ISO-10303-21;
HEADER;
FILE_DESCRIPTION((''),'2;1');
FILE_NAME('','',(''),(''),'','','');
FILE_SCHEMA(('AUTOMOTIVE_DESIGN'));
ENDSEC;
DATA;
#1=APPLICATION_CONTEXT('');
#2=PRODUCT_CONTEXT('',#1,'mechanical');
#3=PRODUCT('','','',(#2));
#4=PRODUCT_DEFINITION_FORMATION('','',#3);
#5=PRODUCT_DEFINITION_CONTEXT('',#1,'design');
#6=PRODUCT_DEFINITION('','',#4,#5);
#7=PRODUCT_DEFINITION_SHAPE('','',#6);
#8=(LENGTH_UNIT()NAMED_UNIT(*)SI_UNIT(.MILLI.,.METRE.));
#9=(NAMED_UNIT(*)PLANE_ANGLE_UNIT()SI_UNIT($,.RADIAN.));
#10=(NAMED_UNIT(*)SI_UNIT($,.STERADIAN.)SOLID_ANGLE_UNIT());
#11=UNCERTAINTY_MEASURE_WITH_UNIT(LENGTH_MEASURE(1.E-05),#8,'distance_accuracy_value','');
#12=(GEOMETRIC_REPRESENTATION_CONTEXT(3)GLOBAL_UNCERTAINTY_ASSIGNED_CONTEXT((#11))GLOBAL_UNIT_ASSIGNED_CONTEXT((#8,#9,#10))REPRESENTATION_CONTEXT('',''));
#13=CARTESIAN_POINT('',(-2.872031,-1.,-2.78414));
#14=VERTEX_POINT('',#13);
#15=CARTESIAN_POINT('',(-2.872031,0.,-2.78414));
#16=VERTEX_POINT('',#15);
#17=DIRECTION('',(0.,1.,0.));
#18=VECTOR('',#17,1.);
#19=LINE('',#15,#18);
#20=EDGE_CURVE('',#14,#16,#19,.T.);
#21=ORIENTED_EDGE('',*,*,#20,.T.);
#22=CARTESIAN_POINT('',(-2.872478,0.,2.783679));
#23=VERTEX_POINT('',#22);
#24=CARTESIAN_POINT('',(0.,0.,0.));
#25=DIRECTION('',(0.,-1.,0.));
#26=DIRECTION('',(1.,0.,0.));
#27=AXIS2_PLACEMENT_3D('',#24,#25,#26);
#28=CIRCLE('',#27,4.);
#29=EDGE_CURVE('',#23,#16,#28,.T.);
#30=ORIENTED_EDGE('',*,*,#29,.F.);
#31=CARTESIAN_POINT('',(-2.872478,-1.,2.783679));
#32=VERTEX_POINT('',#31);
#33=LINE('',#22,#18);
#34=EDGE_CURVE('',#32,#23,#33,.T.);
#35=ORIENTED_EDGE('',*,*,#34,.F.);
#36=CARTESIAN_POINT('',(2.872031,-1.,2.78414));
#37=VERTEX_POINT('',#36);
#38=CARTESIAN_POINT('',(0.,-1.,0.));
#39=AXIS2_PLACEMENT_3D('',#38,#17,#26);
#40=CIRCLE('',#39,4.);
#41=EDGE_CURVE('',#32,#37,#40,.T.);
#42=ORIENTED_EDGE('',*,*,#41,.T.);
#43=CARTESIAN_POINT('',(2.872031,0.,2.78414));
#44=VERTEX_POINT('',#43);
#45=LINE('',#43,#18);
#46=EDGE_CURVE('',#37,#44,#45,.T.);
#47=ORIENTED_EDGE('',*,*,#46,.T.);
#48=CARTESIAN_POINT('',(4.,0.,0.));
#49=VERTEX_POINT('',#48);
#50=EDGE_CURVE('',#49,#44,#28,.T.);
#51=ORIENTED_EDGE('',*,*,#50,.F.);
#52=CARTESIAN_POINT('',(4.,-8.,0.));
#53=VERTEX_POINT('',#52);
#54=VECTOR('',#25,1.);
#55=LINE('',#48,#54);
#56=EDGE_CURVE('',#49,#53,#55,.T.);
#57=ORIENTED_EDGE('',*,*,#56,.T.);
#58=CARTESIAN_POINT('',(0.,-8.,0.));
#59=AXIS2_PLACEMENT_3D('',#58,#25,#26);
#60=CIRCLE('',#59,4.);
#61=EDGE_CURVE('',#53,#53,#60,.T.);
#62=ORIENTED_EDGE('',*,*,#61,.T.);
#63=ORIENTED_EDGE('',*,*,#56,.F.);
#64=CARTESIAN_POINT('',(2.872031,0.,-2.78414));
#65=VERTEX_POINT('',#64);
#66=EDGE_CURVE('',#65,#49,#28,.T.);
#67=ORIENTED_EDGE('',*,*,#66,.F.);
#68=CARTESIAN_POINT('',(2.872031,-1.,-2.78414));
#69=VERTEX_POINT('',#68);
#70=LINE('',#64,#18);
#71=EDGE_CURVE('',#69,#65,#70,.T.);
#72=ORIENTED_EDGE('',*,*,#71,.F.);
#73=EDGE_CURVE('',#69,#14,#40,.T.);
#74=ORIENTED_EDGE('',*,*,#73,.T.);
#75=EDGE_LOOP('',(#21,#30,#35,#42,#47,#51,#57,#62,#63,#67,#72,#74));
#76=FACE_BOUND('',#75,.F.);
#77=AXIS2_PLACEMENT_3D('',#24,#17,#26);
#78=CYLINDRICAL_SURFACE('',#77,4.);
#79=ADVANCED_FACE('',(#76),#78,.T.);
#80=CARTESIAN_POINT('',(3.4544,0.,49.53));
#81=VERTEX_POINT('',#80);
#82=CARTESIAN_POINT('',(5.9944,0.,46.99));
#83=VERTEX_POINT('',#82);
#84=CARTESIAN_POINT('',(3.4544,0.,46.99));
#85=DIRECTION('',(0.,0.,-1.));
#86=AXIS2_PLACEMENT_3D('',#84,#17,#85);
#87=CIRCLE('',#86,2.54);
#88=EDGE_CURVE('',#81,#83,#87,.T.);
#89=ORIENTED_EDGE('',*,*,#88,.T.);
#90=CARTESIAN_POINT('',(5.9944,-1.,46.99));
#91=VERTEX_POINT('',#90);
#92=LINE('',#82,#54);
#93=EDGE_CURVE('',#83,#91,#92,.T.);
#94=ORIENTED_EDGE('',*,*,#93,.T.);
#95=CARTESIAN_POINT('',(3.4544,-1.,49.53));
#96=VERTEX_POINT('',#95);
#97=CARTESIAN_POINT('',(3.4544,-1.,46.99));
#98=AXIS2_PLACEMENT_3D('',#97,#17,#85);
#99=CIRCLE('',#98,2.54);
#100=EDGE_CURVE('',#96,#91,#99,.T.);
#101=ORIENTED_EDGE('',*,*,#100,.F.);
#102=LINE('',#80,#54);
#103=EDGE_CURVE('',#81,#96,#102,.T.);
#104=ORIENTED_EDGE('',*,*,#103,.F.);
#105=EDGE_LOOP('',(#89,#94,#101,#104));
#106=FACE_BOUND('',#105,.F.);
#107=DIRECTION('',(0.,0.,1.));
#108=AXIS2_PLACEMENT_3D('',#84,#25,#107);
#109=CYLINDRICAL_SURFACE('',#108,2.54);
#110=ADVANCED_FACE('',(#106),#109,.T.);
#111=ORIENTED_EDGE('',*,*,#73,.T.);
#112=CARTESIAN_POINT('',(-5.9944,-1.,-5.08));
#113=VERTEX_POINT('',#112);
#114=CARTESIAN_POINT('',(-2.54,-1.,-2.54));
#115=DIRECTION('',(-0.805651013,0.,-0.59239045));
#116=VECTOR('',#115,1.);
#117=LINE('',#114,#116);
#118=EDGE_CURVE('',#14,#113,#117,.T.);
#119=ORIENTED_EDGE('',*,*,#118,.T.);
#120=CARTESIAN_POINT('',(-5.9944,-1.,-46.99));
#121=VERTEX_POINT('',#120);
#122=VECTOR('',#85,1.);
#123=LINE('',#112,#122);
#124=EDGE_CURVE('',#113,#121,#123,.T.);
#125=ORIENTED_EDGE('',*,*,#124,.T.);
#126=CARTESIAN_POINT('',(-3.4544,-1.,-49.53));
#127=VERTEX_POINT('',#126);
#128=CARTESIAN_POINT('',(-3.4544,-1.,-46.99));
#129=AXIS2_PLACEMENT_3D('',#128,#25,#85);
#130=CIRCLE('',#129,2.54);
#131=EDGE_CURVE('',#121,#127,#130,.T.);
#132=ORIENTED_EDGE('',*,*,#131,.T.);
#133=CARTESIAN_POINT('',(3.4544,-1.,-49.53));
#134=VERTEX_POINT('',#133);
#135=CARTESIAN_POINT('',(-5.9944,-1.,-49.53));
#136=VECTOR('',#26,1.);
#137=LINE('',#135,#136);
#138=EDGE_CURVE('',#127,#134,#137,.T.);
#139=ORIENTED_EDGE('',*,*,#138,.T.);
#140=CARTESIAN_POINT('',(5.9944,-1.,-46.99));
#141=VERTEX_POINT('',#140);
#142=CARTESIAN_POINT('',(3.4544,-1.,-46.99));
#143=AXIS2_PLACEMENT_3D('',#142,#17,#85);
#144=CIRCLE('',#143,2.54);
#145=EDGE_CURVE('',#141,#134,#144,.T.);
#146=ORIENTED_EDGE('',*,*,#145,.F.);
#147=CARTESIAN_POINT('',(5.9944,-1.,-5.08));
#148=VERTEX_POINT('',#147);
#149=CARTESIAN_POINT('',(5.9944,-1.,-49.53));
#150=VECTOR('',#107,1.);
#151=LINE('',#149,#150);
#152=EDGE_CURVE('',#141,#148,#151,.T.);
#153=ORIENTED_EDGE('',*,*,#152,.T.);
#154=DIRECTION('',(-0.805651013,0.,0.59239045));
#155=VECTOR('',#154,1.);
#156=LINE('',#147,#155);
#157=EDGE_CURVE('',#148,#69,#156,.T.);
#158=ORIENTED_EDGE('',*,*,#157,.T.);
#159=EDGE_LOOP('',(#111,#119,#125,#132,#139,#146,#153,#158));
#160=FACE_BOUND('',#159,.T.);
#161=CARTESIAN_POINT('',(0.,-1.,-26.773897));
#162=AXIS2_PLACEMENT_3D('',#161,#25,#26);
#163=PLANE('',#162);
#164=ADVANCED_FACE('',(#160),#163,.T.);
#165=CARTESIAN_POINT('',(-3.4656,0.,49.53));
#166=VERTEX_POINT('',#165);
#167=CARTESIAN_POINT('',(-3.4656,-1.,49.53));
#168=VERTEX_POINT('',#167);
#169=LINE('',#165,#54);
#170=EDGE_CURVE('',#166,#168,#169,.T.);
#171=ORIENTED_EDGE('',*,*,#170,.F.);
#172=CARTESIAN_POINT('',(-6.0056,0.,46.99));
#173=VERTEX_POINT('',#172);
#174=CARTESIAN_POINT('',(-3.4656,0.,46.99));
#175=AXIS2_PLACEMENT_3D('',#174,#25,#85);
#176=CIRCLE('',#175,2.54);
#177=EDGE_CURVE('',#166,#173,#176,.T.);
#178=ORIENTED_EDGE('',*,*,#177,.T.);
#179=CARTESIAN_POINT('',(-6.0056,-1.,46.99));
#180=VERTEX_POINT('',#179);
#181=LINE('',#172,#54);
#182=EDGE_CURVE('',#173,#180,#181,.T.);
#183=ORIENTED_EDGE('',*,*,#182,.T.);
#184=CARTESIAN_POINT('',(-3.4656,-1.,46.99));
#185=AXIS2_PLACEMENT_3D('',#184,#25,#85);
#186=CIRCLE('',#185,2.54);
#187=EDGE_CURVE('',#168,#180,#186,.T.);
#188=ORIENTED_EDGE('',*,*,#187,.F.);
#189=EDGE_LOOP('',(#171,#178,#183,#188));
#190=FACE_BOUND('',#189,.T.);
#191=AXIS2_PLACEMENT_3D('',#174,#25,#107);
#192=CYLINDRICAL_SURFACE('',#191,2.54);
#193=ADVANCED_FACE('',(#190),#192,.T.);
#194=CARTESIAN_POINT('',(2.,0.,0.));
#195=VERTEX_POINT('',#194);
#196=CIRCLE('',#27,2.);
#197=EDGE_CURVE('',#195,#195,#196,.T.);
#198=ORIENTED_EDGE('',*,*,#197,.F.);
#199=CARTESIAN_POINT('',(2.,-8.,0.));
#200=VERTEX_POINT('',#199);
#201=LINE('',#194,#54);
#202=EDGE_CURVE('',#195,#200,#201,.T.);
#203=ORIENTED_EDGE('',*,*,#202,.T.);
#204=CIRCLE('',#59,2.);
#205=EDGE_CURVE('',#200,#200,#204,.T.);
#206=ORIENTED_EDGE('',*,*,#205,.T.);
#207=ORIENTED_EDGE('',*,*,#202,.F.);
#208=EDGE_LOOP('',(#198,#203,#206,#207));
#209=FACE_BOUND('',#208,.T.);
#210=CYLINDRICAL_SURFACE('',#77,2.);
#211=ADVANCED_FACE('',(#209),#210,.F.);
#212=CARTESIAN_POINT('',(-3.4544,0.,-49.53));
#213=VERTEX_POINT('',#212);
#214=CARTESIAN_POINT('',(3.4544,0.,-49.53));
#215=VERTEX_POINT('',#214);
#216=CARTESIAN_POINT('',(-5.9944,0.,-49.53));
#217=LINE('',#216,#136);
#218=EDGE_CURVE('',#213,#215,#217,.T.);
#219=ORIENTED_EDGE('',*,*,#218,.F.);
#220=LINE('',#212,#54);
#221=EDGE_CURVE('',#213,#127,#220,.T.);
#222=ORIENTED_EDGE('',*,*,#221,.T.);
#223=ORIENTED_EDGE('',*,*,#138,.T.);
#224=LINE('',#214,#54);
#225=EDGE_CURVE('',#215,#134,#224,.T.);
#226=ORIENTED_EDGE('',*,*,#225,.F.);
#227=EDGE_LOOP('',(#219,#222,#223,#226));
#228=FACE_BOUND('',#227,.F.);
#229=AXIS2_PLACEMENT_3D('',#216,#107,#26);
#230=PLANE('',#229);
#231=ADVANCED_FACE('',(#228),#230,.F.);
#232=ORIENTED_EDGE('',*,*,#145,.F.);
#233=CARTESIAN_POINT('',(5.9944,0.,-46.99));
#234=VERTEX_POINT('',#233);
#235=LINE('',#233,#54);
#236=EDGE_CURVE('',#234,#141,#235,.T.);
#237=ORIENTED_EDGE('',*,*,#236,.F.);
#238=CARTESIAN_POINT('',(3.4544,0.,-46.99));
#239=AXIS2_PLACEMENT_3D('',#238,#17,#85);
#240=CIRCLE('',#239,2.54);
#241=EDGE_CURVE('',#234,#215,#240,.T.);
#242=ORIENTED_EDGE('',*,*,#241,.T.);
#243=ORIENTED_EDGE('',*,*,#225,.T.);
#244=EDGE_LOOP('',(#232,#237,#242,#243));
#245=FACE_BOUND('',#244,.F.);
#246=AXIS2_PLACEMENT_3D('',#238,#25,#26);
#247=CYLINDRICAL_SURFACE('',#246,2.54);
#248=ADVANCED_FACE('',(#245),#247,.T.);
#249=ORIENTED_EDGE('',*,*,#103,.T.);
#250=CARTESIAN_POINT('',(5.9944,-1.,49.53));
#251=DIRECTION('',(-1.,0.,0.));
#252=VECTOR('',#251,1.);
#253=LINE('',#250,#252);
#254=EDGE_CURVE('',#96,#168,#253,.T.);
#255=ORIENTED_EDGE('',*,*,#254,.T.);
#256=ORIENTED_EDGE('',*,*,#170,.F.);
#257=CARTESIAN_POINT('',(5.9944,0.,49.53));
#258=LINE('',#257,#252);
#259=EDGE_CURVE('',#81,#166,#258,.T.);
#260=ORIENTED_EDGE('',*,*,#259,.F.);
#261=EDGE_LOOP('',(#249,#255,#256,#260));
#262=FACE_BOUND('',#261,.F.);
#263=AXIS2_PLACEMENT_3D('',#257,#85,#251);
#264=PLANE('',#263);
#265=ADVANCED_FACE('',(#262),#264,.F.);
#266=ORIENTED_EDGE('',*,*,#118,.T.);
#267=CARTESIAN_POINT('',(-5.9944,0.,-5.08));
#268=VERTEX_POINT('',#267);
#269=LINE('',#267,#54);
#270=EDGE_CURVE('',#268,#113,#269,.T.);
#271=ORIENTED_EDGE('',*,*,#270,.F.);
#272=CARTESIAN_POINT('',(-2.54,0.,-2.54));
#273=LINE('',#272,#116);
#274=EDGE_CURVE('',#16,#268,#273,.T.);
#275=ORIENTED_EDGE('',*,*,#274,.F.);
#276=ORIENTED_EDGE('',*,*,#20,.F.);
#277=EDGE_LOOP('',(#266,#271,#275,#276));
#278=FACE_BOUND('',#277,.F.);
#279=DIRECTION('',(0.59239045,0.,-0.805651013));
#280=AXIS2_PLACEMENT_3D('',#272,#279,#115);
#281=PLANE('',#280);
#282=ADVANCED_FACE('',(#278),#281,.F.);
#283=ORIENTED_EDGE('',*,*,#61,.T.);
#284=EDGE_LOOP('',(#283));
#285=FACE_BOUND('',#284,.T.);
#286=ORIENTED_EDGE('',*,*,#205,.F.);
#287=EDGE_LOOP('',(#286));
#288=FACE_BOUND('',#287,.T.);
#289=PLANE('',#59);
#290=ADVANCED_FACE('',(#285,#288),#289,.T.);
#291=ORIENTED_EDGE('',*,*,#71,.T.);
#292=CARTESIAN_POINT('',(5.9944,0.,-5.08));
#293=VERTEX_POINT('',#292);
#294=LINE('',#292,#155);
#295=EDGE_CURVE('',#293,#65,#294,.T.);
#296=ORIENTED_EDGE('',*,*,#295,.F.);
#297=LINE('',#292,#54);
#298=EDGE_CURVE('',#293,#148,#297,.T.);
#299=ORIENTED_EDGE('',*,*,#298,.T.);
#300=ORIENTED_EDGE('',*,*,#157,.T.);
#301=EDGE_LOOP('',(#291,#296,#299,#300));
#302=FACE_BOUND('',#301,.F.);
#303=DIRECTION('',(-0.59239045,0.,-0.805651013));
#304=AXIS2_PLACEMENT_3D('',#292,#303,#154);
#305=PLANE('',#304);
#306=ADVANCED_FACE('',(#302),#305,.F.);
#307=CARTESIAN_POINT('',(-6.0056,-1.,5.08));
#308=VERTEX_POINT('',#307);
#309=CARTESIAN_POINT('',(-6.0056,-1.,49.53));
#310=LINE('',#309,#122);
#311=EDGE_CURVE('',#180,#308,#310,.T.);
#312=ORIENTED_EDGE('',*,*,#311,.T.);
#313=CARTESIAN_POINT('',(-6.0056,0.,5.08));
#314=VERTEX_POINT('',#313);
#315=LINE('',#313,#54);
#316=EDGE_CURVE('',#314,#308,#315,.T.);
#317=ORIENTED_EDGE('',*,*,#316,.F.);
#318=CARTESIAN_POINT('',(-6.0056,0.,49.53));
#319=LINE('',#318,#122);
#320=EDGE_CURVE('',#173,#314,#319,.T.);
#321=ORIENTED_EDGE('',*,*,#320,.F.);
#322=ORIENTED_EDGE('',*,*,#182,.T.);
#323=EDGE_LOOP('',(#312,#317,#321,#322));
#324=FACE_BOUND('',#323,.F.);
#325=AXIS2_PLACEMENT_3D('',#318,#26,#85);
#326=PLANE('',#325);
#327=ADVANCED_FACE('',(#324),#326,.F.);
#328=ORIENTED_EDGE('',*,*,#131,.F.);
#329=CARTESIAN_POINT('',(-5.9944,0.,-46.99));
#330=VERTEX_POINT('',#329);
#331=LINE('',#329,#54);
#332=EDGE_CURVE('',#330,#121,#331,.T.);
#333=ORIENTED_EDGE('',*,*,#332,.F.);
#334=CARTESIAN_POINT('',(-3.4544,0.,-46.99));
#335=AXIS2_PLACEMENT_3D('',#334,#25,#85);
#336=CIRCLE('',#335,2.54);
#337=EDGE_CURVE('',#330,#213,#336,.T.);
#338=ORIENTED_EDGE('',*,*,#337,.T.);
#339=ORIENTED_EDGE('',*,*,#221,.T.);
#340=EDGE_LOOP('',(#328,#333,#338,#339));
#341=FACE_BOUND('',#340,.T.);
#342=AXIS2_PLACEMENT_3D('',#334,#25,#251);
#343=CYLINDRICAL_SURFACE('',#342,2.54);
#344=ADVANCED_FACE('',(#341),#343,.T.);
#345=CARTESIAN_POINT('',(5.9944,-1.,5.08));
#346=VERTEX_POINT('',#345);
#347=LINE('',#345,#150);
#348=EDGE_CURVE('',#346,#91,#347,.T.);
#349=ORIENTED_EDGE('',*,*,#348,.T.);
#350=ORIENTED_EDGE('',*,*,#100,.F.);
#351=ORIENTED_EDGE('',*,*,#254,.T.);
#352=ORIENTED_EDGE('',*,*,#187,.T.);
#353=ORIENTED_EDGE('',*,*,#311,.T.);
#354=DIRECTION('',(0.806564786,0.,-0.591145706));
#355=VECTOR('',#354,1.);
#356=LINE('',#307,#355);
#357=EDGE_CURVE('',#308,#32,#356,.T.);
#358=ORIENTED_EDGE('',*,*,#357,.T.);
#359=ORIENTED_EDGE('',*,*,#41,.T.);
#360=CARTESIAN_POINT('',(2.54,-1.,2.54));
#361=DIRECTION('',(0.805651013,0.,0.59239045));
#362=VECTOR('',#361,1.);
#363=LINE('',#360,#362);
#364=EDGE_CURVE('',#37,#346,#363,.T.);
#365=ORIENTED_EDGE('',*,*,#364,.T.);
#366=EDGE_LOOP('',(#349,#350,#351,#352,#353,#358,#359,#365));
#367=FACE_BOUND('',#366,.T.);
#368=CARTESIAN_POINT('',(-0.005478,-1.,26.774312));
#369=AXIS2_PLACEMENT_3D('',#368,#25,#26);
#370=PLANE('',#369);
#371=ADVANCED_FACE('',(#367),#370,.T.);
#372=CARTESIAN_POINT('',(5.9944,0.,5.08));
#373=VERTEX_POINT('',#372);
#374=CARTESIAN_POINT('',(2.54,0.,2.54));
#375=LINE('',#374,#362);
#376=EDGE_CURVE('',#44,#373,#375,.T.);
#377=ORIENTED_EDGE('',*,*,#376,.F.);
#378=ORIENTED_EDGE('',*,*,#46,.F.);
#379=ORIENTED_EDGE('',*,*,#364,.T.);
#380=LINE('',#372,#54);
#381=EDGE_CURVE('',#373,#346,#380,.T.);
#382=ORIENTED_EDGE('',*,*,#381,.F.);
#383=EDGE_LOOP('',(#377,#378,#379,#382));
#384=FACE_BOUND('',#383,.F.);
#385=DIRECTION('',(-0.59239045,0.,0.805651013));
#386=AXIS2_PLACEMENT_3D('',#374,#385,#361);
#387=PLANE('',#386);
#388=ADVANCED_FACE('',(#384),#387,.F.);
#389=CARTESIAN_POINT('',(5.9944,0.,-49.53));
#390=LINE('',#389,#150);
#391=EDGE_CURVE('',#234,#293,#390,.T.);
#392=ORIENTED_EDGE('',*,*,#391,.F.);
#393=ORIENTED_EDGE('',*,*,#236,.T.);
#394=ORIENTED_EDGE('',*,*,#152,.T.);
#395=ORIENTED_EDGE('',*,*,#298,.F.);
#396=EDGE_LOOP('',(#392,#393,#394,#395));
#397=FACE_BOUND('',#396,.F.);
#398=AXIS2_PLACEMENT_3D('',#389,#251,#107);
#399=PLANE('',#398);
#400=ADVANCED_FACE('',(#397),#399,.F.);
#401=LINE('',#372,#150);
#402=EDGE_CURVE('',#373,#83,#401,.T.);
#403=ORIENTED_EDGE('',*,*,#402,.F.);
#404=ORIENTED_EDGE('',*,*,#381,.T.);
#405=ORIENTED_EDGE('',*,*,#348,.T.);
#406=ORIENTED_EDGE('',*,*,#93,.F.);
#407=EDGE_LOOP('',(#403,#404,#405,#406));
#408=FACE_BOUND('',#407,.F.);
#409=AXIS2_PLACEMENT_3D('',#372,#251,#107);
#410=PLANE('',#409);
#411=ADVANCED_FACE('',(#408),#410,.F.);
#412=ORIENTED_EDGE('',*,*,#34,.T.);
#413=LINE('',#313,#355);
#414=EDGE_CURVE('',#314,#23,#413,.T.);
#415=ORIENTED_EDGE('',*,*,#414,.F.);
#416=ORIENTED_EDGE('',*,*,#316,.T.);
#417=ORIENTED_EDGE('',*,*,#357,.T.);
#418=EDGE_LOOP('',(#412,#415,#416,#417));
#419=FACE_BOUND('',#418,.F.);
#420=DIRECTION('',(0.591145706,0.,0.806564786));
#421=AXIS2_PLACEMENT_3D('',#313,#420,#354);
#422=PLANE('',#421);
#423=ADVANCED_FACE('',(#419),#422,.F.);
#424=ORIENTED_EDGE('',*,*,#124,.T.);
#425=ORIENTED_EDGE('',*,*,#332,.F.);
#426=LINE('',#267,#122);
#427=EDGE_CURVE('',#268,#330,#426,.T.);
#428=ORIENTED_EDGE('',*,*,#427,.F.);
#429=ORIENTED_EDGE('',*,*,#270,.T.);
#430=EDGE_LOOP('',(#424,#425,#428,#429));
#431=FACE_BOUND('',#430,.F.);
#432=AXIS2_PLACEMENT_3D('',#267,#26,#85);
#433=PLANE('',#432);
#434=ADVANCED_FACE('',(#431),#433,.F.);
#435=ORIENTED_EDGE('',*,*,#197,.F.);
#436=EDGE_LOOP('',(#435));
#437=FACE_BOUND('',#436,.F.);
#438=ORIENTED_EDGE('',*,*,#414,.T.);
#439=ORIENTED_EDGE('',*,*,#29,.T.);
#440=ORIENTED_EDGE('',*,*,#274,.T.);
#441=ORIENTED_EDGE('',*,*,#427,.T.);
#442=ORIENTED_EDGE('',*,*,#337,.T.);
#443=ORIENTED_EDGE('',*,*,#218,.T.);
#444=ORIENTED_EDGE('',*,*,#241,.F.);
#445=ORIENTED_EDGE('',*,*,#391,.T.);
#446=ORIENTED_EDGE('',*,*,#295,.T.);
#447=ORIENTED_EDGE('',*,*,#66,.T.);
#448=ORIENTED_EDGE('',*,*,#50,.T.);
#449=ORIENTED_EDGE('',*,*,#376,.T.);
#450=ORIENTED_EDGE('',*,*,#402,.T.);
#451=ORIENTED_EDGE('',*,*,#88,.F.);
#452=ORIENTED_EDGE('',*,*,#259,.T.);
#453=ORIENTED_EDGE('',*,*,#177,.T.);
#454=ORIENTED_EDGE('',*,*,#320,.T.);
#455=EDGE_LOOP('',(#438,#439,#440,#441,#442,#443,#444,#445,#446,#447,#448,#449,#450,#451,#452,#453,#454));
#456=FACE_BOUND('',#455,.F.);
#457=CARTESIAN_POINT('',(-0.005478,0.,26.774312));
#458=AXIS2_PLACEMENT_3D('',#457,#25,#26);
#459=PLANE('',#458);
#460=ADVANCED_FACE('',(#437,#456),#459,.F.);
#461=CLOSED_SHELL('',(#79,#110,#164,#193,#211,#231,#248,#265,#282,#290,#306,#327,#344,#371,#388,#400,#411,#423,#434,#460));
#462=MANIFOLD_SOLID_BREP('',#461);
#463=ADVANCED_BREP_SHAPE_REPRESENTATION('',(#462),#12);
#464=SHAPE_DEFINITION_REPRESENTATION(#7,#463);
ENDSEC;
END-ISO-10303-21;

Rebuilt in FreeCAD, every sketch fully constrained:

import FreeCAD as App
import Part
import Sketcher
from FreeCAD import Vector
Q = App.Units.Quantity


def edges_at(feature, points):
    """Names of the edges that pass closest to the given points."""
    edges = feature.Shape.Edges
    near = lambda p: min(range(len(edges)), key=lambda i: edges[i].distToShape(Part.Vertex(*p))[0])
    return sorted({f"Edge{near(p) + 1}" for p in points})

doc = App.newDocument("Part")
params = doc.addObject("Spreadsheet::Sheet", "Params")
for row, (alias, value) in enumerate([
    ("sketch1_diameter", "8 mm"),
    ("sketch1_diameter2", "4 mm"),
    ("pad1_length", "8 mm"),
    ("sketch2_width", "12 mm"),
    ("sketch2_width2", "5.08 mm"),
    ("sketch2_height", "44.45 mm"),
    ("pad2_length", "1 mm"),
    ("fillet_radius", "2.54 mm"),
], start=1):
    params.set(f"A{row}", alias)
    params.set(f"B{row}", "=" + value)
    params.setAlias(f"B{row}", alias)

body = doc.addObject("PartDesign::Body", "Body")

sketch1 = doc.addObject("Sketcher::SketchObject", "Sketch")
body.addObject(sketch1)
sketch1.AttachmentSupport = (doc.XZ_Plane, [""])
sketch1.MapMode = "FlatFace"
sketch1.addGeometry([
    Part.Circle(Vector(0, 0, 0), Vector(0, 0, 1), 4),
    Part.Circle(Vector(0, 0, 0), Vector(0, 0, 1), 2),
], False)
sketch1.addConstraint([
    Sketcher.Constraint("Coincident", 0, 3, -1, 1),
    Sketcher.Constraint("Coincident", 1, 3, -1, 1),
    Sketcher.Constraint("Diameter", 0, Q("8 mm")),
    Sketcher.Constraint("Diameter", 1, Q("4 mm")),
])
sketch1.setExpression("Constraints[2]", "Params.sketch1_diameter")
sketch1.setExpression("Constraints[3]", "Params.sketch1_diameter2")
pad1 = doc.addObject("PartDesign::Pad", "Pad")
body.addObject(pad1)
pad1.Profile = sketch1
pad1.setExpression("Length", "Params.pad1_length")

sketch2 = doc.addObject("Sketcher::SketchObject", "Sketch001")
body.addObject(sketch2)
sketch2.AttachmentSupport = (doc.XZ_Plane, [""])
sketch2.MapMode = "FlatFace"
sketch2.addGeometry([
    Part.LineSegment(Vector(5.9944, 49.53, 0), Vector(-6.0056, 49.53, 0)),
    Part.LineSegment(Vector(-6.0056, 49.53, 0), Vector(-6.0056, 5.08, 0)),
    Part.LineSegment(Vector(-6.0056, 5.08, 0), Vector(-2.54, 2.54, 0)),
    Part.LineSegment(Vector(-2.54, 2.54, 0), Vector(2.54, 2.54, 0)),
    Part.LineSegment(Vector(2.54, 2.54, 0), Vector(5.9944, 5.08, 0)),
    Part.LineSegment(Vector(5.9944, 5.08, 0), Vector(5.9944, 49.53, 0)),
    Part.LineSegment(Vector(-5.9944, -5.08, 0), Vector(-5.9944, -49.53, 0)),
    Part.LineSegment(Vector(-5.9944, -49.53, 0), Vector(5.9944, -49.53, 0)),
    Part.LineSegment(Vector(5.9944, -49.53, 0), Vector(5.9944, -5.08, 0)),
    Part.LineSegment(Vector(5.9944, -5.08, 0), Vector(2.54, -2.54, 0)),
    Part.LineSegment(Vector(2.54, -2.54, 0), Vector(-2.54, -2.54, 0)),
    Part.LineSegment(Vector(-2.54, -2.54, 0), Vector(-5.9944, -5.08, 0)),
], False)
sketch2.addConstraint([
    Sketcher.Constraint("Coincident", 0, 2, 1, 1),
    Sketcher.Constraint("Coincident", 1, 2, 2, 1),
    Sketcher.Constraint("Coincident", 2, 2, 3, 1),
    Sketcher.Constraint("Coincident", 3, 2, 4, 1),
    Sketcher.Constraint("Coincident", 4, 2, 5, 1),
    Sketcher.Constraint("Coincident", 5, 2, 0, 1),
    Sketcher.Constraint("Coincident", 6, 2, 7, 1),
    Sketcher.Constraint("Coincident", 7, 2, 8, 1),
    Sketcher.Constraint("Coincident", 8, 2, 9, 1),
    Sketcher.Constraint("Coincident", 9, 2, 10, 1),
    Sketcher.Constraint("Coincident", 10, 2, 11, 1),
    Sketcher.Constraint("Coincident", 11, 2, 6, 1),
    Sketcher.Constraint("Horizontal", 0),
    Sketcher.Constraint("Vertical", 1),
    Sketcher.Constraint("Horizontal", 3),
    Sketcher.Constraint("Vertical", 5),
    Sketcher.Constraint("Vertical", 6),
    Sketcher.Constraint("Horizontal", 7),
    Sketcher.Constraint("Vertical", 8),
    Sketcher.Constraint("Horizontal", 10),
    Sketcher.Constraint("Symmetric", 5, 2, 6, 2, -1, 1),
    Sketcher.Constraint("Symmetric", 2, 2, 9, 2, -1, 1),
    Sketcher.Constraint("Symmetric", 8, 2, 11, 2, -2),
    Sketcher.Constraint("Parallel", 4, 11),
    Sketcher.Constraint("Horizontal", 1, 2, 4, 2),
    Sketcher.Constraint("Vertical", 3, 2, 9, 2),
    Sketcher.Constraint("Vertical", 2, 2, 10, 2),
    Sketcher.Constraint("DistanceX", 0, 2, 0, 1, Q("12 mm")),
    Sketcher.Constraint("DistanceX", 3, 1, 3, 2, Q("5.08 mm")),
    Sketcher.Constraint("DistanceY", 1, 2, 1, 1, Q("44.45 mm")),
    Sketcher.Constraint("DistanceY", -1, 1, 0, 2, Q("49.53 mm")),
    Sketcher.Constraint("DistanceY", -1, 1, 2, 2, Q("2.54 mm")),
    Sketcher.Constraint("DistanceX", 7, 1, 7, 2, Q("11.9888 mm")),
])
sketch2.setExpression("Constraints[27]", "Params.sketch2_width")
sketch2.setExpression("Constraints[28]", "Params.sketch2_width2")
sketch2.setExpression("Constraints[29]", "Params.sketch2_height")
pad2 = doc.addObject("PartDesign::Pad", "Pad001")
body.addObject(pad2)
pad2.Profile = sketch2
pad2.setExpression("Length", "Params.pad2_length")
doc.recompute()

fillet = doc.addObject("PartDesign::Fillet", "Fillet")
body.addObject(fillet)
fillet.Base = (pad2, edges_at(pad2, [
    (-6.006, -0.5, 49.53),
    (5.994, -0.5, 49.53),
    (5.994, -0.5, -49.53),
    (-5.994, -0.5, -49.53),
]))
fillet.setExpression("Radius", "Params.fillet_radius")

doc.recompute()
